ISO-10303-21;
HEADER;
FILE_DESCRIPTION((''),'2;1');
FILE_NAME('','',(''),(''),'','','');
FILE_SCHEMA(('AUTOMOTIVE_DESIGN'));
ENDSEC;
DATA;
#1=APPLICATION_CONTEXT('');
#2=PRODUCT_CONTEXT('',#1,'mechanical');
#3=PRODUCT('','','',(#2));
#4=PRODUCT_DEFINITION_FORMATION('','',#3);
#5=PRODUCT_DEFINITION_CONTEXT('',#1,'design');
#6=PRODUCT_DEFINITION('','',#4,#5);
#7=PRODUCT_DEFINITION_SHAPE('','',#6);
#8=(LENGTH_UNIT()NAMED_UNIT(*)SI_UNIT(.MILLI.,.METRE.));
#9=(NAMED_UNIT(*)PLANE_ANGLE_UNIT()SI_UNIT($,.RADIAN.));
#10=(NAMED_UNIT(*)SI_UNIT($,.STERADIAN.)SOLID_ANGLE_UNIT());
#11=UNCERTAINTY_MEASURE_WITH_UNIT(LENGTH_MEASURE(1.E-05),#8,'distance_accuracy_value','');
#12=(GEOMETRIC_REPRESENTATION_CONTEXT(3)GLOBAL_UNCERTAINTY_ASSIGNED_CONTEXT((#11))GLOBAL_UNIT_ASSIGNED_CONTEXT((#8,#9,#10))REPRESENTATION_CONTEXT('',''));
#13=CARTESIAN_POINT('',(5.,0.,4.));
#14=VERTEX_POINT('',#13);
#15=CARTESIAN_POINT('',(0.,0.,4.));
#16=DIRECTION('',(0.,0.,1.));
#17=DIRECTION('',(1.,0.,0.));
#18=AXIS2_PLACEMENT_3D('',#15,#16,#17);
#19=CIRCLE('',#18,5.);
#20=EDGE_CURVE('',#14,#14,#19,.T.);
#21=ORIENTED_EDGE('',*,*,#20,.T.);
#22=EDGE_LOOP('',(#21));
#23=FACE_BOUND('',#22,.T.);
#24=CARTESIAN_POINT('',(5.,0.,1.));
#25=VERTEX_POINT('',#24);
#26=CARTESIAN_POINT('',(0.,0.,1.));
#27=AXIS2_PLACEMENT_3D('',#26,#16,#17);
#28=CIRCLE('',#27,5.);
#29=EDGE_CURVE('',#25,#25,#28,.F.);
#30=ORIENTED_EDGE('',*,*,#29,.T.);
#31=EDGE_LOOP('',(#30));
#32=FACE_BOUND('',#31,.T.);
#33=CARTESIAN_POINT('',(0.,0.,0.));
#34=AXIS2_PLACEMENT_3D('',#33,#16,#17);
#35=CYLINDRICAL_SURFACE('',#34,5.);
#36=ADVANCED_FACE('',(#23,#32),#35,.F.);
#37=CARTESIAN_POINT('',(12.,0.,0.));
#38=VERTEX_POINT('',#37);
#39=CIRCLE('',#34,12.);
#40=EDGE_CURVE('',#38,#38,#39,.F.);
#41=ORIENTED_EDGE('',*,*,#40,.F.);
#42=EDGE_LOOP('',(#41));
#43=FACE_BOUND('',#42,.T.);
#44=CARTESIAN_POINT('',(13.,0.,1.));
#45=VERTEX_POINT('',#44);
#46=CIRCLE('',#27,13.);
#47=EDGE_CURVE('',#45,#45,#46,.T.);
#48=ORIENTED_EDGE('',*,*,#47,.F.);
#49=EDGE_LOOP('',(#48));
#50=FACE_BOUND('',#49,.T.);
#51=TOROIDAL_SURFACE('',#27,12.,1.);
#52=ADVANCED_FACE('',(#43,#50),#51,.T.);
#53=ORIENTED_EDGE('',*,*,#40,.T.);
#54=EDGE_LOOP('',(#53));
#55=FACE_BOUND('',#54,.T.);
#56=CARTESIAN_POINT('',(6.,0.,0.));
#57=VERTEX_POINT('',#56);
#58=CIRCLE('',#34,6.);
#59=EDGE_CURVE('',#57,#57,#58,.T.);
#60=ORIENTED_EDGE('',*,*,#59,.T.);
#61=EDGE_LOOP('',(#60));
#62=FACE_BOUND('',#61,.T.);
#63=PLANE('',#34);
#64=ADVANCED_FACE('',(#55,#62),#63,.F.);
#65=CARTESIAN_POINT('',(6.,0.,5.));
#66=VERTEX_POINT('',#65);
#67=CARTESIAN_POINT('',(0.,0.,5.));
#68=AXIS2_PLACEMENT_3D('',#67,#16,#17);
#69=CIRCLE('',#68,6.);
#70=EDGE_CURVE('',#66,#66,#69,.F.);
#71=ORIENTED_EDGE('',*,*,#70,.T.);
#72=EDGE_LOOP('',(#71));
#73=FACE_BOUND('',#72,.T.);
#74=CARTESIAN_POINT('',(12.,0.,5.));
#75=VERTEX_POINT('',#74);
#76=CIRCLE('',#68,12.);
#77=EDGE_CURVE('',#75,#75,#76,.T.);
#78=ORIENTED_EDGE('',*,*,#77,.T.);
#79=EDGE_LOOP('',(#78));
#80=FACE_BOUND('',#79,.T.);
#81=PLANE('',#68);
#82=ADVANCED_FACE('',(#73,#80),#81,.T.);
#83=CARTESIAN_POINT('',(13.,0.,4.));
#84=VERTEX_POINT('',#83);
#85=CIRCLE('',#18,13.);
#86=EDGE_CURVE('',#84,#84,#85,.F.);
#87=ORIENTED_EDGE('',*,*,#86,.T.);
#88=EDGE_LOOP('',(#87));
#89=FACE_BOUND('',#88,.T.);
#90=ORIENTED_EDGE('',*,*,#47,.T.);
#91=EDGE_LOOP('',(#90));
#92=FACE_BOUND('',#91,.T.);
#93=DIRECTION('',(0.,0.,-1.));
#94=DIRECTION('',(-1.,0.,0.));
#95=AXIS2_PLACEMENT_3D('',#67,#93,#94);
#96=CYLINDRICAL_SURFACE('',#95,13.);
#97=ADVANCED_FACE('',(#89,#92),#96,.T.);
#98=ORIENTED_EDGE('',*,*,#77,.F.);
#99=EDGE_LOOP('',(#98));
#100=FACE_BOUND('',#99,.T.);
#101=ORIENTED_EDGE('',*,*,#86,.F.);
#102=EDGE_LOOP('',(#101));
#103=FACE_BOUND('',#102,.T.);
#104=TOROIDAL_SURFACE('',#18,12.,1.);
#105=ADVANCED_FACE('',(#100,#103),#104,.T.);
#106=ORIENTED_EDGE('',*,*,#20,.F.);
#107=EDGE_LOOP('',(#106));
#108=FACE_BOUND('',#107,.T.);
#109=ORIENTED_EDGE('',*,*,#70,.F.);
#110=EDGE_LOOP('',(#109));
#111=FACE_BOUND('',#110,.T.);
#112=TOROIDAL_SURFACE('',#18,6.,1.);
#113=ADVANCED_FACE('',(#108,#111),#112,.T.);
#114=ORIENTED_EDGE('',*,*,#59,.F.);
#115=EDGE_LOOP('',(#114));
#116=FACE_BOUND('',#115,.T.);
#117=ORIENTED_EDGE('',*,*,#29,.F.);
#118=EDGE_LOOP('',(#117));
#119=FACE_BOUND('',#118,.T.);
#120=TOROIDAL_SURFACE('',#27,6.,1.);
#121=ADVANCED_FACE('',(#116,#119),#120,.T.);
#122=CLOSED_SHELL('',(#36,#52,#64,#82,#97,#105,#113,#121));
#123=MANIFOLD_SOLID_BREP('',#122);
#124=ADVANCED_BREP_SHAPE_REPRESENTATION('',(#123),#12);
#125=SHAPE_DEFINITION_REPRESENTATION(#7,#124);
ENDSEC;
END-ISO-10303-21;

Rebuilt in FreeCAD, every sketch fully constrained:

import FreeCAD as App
import Part
import Sketcher


def edges_at(feature, points):
    """Names of the edges that pass closest to the given points."""
    edges = feature.Shape.Edges
    near = lambda p: min(range(len(edges)), key=lambda i: edges[i].distToShape(Part.Vertex(*p))[0])
    return sorted({f"Edge{near(p) + 1}" for p in points})

doc = App.newDocument("Part")
body = doc.addObject("PartDesign::Body", "Body")

sketch1 = body.newObject("Sketcher::SketchObject", "Sketch")
sketch1.AttachmentSupport = (doc.getObject("XY_Plane"), [""])
sketch1.MapMode = "FlatFace"
sketch1.addGeometry(Part.Circle(App.Vector(0, 0, 0), App.Vector(0, 0, 1), 13), False)
sketch1.addConstraint([
    Sketcher.Constraint("Coincident", 0, 3, -1, 1),
    Sketcher.Constraint("Diameter", 0, 26.0),
])
pad1 = body.newObject("PartDesign::Pad", "Pad")
pad1.Profile = sketch1
pad1.Length = 5

sketch2 = body.newObject("Sketcher::SketchObject", "Sketch001")
sketch2.AttachmentSupport = (doc.getObject("XY_Plane"), [""])
sketch2.MapMode = "FlatFace"
sketch2.AttachmentOffset = App.Placement(App.Vector(0, 0, 5), App.Rotation())
sketch2.addGeometry(Part.Circle(App.Vector(0, 0, 0), App.Vector(0, 0, 1), 5), False)
sketch2.addConstraint([
    Sketcher.Constraint("Coincident", 0, 3, -1, 1),
    Sketcher.Constraint("Diameter", 0, 10.0),
])
pocket1 = body.newObject("PartDesign::Pocket", "Pocket")
pocket1.Profile = sketch2
pocket1.Type = "ThroughAll"
doc.recompute()

fillet = body.newObject("PartDesign::Fillet", "Fillet")
fillet.Base = (pocket1, edges_at(pocket1, [
    (-13, 0, 0),
    (-13, 0, 5),
    (-5, 0, 0),
    (-5, 0, 5),
]))
fillet.Radius = 1

doc.recompute()
